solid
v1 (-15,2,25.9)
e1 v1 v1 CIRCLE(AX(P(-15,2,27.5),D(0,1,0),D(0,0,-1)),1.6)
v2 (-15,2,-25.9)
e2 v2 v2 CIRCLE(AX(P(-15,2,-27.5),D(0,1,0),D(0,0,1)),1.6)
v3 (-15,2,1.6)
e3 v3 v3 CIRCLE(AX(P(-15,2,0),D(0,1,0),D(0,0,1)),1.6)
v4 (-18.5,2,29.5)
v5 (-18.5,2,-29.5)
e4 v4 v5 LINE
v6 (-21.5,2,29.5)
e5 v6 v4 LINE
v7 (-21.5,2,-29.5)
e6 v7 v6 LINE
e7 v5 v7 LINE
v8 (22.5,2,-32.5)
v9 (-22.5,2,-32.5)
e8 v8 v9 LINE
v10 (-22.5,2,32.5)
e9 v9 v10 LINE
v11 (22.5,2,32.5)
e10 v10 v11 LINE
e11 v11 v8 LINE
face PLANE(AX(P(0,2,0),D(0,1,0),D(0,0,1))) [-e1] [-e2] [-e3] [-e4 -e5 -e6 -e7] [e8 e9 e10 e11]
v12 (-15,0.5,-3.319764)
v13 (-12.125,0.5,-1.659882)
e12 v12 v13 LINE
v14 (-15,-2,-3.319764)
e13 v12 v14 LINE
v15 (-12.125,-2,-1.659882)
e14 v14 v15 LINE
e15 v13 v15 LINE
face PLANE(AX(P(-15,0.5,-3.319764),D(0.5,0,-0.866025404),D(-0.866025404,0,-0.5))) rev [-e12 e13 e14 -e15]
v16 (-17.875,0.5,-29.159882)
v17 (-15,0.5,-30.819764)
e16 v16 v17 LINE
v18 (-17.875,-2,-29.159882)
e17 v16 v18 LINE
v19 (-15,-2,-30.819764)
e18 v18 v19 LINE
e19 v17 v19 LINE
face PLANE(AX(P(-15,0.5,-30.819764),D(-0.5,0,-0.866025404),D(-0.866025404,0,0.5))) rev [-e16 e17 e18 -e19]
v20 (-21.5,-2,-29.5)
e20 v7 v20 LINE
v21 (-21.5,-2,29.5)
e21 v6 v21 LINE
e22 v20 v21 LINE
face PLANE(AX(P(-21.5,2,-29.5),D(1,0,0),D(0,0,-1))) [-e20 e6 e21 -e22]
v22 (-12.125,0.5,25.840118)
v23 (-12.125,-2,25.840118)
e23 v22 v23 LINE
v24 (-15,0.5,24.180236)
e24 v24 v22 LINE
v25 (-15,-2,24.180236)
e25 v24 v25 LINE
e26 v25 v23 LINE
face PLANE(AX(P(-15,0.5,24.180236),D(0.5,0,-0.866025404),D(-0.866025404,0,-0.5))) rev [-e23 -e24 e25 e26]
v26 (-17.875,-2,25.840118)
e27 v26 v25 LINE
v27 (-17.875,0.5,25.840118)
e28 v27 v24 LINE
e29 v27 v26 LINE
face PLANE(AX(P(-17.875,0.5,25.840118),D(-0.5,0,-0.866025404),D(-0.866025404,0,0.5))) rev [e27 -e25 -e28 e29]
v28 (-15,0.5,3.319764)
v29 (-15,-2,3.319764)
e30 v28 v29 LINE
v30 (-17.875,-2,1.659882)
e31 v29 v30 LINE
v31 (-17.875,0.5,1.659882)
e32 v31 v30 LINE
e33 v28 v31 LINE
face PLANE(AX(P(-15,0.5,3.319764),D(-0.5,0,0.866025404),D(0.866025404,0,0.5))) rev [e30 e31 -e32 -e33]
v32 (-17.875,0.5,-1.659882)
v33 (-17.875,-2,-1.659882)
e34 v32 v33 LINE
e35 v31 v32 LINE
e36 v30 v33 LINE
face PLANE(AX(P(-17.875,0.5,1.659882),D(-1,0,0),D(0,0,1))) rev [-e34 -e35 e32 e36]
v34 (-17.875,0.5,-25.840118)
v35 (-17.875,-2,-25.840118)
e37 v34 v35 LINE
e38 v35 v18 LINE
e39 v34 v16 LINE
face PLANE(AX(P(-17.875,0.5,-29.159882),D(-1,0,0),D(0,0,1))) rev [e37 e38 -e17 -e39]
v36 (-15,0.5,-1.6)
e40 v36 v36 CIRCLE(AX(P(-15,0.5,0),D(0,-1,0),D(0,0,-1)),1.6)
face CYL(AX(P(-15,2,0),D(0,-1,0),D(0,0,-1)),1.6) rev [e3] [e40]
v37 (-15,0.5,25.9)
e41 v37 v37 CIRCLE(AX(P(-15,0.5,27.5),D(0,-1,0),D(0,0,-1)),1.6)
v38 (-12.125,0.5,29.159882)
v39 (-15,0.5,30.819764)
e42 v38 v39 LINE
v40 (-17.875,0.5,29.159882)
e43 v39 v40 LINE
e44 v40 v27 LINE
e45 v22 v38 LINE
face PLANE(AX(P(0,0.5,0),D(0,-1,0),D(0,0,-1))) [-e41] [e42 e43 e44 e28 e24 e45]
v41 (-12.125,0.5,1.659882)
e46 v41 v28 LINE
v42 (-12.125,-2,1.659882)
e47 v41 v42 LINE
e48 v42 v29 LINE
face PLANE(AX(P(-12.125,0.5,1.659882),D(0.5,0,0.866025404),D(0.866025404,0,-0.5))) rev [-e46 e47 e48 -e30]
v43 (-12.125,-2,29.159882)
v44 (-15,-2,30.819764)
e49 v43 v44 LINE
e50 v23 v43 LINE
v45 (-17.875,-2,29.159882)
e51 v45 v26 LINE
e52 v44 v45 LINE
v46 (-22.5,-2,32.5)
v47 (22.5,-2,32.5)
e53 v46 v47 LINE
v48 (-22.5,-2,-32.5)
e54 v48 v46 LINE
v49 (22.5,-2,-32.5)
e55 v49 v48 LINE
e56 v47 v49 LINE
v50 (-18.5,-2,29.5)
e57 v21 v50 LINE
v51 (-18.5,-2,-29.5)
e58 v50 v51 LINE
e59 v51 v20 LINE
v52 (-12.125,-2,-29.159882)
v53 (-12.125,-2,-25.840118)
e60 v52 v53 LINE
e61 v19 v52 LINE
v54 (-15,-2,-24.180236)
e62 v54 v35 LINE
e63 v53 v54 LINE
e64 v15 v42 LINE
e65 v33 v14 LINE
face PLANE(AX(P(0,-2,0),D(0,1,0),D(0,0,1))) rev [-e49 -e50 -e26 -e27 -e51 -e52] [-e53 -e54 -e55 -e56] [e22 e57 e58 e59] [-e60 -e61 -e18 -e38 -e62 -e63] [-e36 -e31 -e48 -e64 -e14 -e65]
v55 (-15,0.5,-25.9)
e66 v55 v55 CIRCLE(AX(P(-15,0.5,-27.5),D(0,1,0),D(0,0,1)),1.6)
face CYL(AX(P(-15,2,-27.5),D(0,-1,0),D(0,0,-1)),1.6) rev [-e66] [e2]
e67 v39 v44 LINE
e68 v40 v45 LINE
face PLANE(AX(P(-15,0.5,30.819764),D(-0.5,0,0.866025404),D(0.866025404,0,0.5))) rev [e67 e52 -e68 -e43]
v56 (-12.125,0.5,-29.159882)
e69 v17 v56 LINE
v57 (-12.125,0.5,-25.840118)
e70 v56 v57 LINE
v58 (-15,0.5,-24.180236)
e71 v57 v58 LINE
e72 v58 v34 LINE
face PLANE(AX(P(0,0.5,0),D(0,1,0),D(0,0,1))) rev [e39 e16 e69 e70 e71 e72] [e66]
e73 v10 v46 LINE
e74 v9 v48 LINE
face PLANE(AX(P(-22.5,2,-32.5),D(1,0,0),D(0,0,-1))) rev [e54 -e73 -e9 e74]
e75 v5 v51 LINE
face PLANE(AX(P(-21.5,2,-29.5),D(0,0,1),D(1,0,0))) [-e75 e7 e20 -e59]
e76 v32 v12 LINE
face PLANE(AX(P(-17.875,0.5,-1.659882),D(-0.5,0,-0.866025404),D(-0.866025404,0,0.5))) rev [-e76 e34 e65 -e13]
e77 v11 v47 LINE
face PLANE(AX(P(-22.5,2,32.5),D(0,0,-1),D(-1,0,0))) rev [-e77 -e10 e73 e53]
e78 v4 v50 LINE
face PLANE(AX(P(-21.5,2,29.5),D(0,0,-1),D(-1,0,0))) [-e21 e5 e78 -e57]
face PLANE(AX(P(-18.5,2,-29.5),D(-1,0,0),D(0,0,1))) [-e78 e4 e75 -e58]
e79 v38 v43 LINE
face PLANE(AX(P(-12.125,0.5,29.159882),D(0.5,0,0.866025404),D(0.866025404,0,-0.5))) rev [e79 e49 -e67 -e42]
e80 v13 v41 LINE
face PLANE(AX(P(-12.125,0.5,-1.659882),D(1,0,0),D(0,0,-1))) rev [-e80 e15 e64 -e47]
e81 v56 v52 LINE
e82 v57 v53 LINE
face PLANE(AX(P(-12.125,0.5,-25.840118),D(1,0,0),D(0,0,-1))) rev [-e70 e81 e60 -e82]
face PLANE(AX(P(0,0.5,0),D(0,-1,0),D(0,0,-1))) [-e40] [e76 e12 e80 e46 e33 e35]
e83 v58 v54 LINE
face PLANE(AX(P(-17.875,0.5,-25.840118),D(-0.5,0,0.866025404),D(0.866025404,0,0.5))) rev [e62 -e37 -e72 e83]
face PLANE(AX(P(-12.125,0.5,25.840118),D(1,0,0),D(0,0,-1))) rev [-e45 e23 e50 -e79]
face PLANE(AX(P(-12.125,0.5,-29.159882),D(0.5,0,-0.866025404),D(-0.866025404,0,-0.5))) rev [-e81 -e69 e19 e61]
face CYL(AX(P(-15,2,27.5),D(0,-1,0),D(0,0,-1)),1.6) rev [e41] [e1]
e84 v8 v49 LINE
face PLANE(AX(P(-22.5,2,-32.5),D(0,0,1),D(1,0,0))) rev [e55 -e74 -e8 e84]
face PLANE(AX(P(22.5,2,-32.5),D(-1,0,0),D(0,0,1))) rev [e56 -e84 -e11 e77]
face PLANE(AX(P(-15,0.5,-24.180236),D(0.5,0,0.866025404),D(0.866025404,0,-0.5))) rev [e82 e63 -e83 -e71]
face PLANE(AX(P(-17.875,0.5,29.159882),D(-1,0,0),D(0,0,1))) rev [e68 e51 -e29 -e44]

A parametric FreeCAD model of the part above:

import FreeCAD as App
import Part
import Sketcher

V = App.Vector
Q = App.Units.Quantity

doc = App.newDocument("Part")
body = doc.addObject("PartDesign::Body", "Body")

sketch1 = body.newObject("Sketcher::SketchObject", "Sketch")
sketch1.AttachmentSupport = (doc.getObject("XZ_Plane"), [""])
sketch1.MapMode = "FlatFace"
sketch1.addGeometry(Part.LineSegment(V(-22.5, -32.5, 0), V(-22.5, 32.5, 0)), False)
sketch1.addGeometry(Part.LineSegment(V(-22.5, 32.5, 0), V(22.5, 32.5, 0)), False)
sketch1.addGeometry(Part.LineSegment(V(22.5, 32.5, 0), V(22.5, -32.5, 0)), False)
sketch1.addGeometry(Part.LineSegment(V(22.5, -32.5, 0), V(-22.5, -32.5, 0)), False)
sketch1.addGeometry(Part.Circle(V(-15, 27.5, 0), V(0, 0, 1), 1.6), False)
sketch1.addGeometry(Part.LineSegment(V(-18.5, 29.5, 0), V(-21.5, 29.5, 0)), False)
sketch1.addGeometry(Part.LineSegment(V(-21.5, 29.5, 0), V(-21.5, -29.5, 0)), False)
sketch1.addGeometry(Part.LineSegment(V(-21.5, -29.5, 0), V(-18.5, -29.5, 0)), False)
sketch1.addGeometry(Part.LineSegment(V(-18.5, -29.5, 0), V(-18.5, 29.5, 0)), False)
sketch1.addGeometry(Part.Circle(V(-15, 0, 0), V(0, 0, 1), 1.6), False)
sketch1.addGeometry(Part.Circle(V(-15, -27.5, 0), V(0, 0, 1), 1.6), False)
sketch1.addConstraint(Sketcher.Constraint("Coincident", 0, 2, 1, 1))
sketch1.addConstraint(Sketcher.Constraint("Coincident", 1, 2, 2, 1))
sketch1.addConstraint(Sketcher.Constraint("Coincident", 2, 2, 3, 1))
sketch1.addConstraint(Sketcher.Constraint("Coincident", 3, 2, 0, 1))
sketch1.addConstraint(Sketcher.Constraint("Coincident", 5, 2, 6, 1))
sketch1.addConstraint(Sketcher.Constraint("Coincident", 6, 2, 7, 1))
sketch1.addConstraint(Sketcher.Constraint("Coincident", 7, 2, 8, 1))
sketch1.addConstraint(Sketcher.Constraint("Coincident", 8, 2, 5, 1))
sketch1.addConstraint(Sketcher.Constraint("Vertical", 0))
sketch1.addConstraint(Sketcher.Constraint("Horizontal", 1))
sketch1.addConstraint(Sketcher.Constraint("Vertical", 2))
sketch1.addConstraint(Sketcher.Constraint("Horizontal", 3))
sketch1.addConstraint(Sketcher.Constraint("Horizontal", 5))
sketch1.addConstraint(Sketcher.Constraint("Vertical", 6))
sketch1.addConstraint(Sketcher.Constraint("Horizontal", 7))
sketch1.addConstraint(Sketcher.Constraint("Vertical", 8))
sketch1.addConstraint(Sketcher.Constraint("Equal", 4, 9))
sketch1.addConstraint(Sketcher.Constraint("Equal", 9, 10))
sketch1.addConstraint(Sketcher.Constraint("Symmetric", 0, 2, 2, 2, -1, 1))
sketch1.addConstraint(Sketcher.Constraint("Symmetric", 4, 3, 10, 3, -1))
sketch1.addConstraint(Sketcher.Constraint("PointOnObject", 9, 3, -1))
sketch1.addConstraint(Sketcher.Constraint("Vertical", 4, 3, 9, 3))
sketch1.addConstraint(Sketcher.Constraint("Diameter", 4, 3.2))
sketch1.addConstraint(Sketcher.Constraint("DistanceX", 1, 1, 1, 2, 45.0))
sketch1.addConstraint(Sketcher.Constraint("DistanceX", 5, 2, 5, 1, 3.0))
sketch1.addConstraint(Sketcher.Constraint("DistanceY", 0, 1, 0, 2, 65.0))
sketch1.addConstraint(Sketcher.Constraint("DistanceY", 6, 2, 6, 1, 59.0))
sketch1.addConstraint(Sketcher.Constraint("DistanceX", 4, 3, -1, 1, 15.0))
sketch1.addConstraint(Sketcher.Constraint("DistanceY", 10, 3, 4, 3, 55.0))
sketch1.addConstraint(Sketcher.Constraint("DistanceX", 0, 2, 5, 2, 1.0))
sketch1.addConstraint(Sketcher.Constraint("DistanceY", 5, 2, 0, 2, 3.0))
pad1 = body.newObject("PartDesign::Pad", "Pad")
pad1.Profile = sketch1
pad1.Length = 4
pad1.Midplane = True

sketch2 = body.newObject("Sketcher::SketchObject", "Sketch001")
sketch2.AttachmentSupport = (doc.getObject("XZ_Plane"), [""])
sketch2.MapMode = "FlatFace"
sketch2.AttachmentOffset = App.Placement(V(0, 0, 2), App.Rotation())
sketch2.addGeometry(Part.LineSegment(V(-15, -3.3, 0), V(-12.1, -1.7, 0)), False)
sketch2.addGeometry(Part.LineSegment(V(-12.1, -1.7, 0), V(-12.1, 1.7, 0)), False)
sketch2.addGeometry(Part.LineSegment(V(-12.1, 1.7, 0), V(-15, 3.3, 0)), False)
sketch2.addGeometry(Part.LineSegment(V(-15, 3.3, 0), V(-17.9, 1.7, 0)), False)
sketch2.addGeometry(Part.LineSegment(V(-17.9, 1.7, 0), V(-17.9, -1.7, 0)), False)
sketch2.addGeometry(Part.LineSegment(V(-17.9, -1.7, 0), V(-15, -3.3, 0)), False)
sketch2.addGeometry(Part.LineSegment(V(-15, -24.2, 0), V(-17.9, -25.8, 0)), False)
sketch2.addGeometry(Part.LineSegment(V(-17.9, -25.8, 0), V(-17.9, -29.2, 0)), False)
sketch2.addGeometry(Part.LineSegment(V(-17.9, -29.2, 0), V(-15, -30.8, 0)), False)
sketch2.addGeometry(Part.LineSegment(V(-15, -30.8, 0), V(-12.1, -29.2, 0)), False)
sketch2.addGeometry(Part.LineSegment(V(-12.1, -29.2, 0), V(-12.1, -25.8, 0)), False)
sketch2.addGeometry(Part.LineSegment(V(-12.1, -25.8, 0), V(-15, -24.2, 0)), False)
sketch2.addGeometry(Part.LineSegment(V(-15, 24.2, 0), V(-12.1, 25.8, 0)), False)
sketch2.addGeometry(Part.LineSegment(V(-12.1, 25.8, 0), V(-12.1, 29.2, 0)), False)
sketch2.addGeometry(Part.LineSegment(V(-12.1, 29.2, 0), V(-15, 30.8, 0)), False)
sketch2.addGeometry(Part.LineSegment(V(-15, 30.8, 0), V(-17.9, 29.2, 0)), False)
sketch2.addGeometry(Part.LineSegment(V(-17.9, 29.2, 0), V(-17.9, 25.8, 0)), False)
sketch2.addGeometry(Part.LineSegment(V(-17.9, 25.8, 0), V(-15, 24.2, 0)), False)
sketch2.addConstraint(Sketcher.Constraint("Coincident", 0, 2, 1, 1))
sketch2.addConstraint(Sketcher.Constraint("Coincident", 1, 2, 2, 1))
sketch2.addConstraint(Sketcher.Constraint("Coincident", 2, 2, 3, 1))
sketch2.addConstraint(Sketcher.Constraint("Coincident", 3, 2, 4, 1))
sketch2.addConstraint(Sketcher.Constraint("Coincident", 4, 2, 5, 1))
sketch2.addConstraint(Sketcher.Constraint("Coincident", 5, 2, 0, 1))
sketch2.addConstraint(Sketcher.Constraint("Coincident", 6, 2, 7, 1))
sketch2.addConstraint(Sketcher.Constraint("Coincident", 7, 2, 8, 1))
sketch2.addConstraint(Sketcher.Constraint("Coincident", 8, 2, 9, 1))
sketch2.addConstraint(Sketcher.Constraint("Coincident", 9, 2, 10, 1))
sketch2.addConstraint(Sketcher.Constraint("Coincident", 10, 2, 11, 1))
sketch2.addConstraint(Sketcher.Constraint("Coincident", 11, 2, 6, 1))
sketch2.addConstraint(Sketcher.Constraint("Coincident", 12, 2, 13, 1))
sketch2.addConstraint(Sketcher.Constraint("Coincident", 13, 2, 14, 1))
sketch2.addConstraint(Sketcher.Constraint("Coincident", 14, 2, 15, 1))
sketch2.addConstraint(Sketcher.Constraint("Coincident", 15, 2, 16, 1))
sketch2.addConstraint(Sketcher.Constraint("Coincident", 16, 2, 17, 1))
sketch2.addConstraint(Sketcher.Constraint("Coincident", 17, 2, 12, 1))
sketch2.addConstraint(Sketcher.Constraint("Vertical", 1))
sketch2.addConstraint(Sketcher.Constraint("Vertical", 4))
sketch2.addConstraint(Sketcher.Constraint("Vertical", 7))
sketch2.addConstraint(Sketcher.Constraint("Vertical", 10))
sketch2.addConstraint(Sketcher.Constraint("Vertical", 13))
sketch2.addConstraint(Sketcher.Constraint("Vertical", 16))
sketch2.addConstraint(Sketcher.Constraint("Symmetric", 2, 2, 5, 2, -1))
sketch2.addConstraint(Sketcher.Constraint("Symmetric", 10, 2, 12, 2, -1))
sketch2.addConstraint(Sketcher.Constraint("Symmetric", 8, 2, 14, 2, -1))
sketch2.addConstraint(Sketcher.Constraint("Symmetric", 7, 2, 15, 2, -1))
sketch2.addConstraint(Sketcher.Constraint("Symmetric", 11, 2, 17, 2, -1))
sketch2.addConstraint(Sketcher.Constraint("Parallel", 0, 3))
sketch2.addConstraint(Sketcher.Constraint("Parallel", 2, 5))
sketch2.addConstraint(Sketcher.Constraint("Parallel", 3, 6))
sketch2.addConstraint(Sketcher.Constraint("Parallel", 5, 8))
sketch2.addConstraint(Sketcher.Constraint("Parallel", 6, 9))
sketch2.addConstraint(Sketcher.Constraint("Parallel", 8, 11))
sketch2.addConstraint(Sketcher.Constraint("Parallel", 9, 12))
sketch2.addConstraint(Sketcher.Constraint("Parallel", 11, 14))
sketch2.addConstraint(Sketcher.Constraint("Parallel", 14, 17))
sketch2.addConstraint(Sketcher.Constraint("Horizontal", 1, 2, 3, 2))
sketch2.addConstraint(Sketcher.Constraint("Horizontal", 7, 2, 9, 2))
sketch2.addConstraint(Sketcher.Constraint("Horizontal", 6, 2, 10, 2))
sketch2.addConstraint(Sketcher.Constraint("Vertical", 4, 2, 6, 2))
sketch2.addConstraint(Sketcher.Constraint("Vertical", 5, 2, 8, 2))
sketch2.addConstraint(Sketcher.Constraint("Equal", 4, 7))
sketch2.addConstraint(Sketcher.Constraint("Angle", 0, Q("30 deg")))
sketch2.addConstraint(Sketcher.Constraint("DistanceX", 2, 2, -1, 1, 15.0))
sketch2.addConstraint(Sketcher.Constraint("DistanceY", 6, 2, 3, 2, 27.5))
sketch2.addConstraint(Sketcher.Constraint("DistanceX", 3, 2, 1, 2, 5.75))
sketch2.addConstraint(Sketcher.Constraint("DistanceY", 1, 1, 1, 2, 3.319764))
pocket1 = body.newObject("PartDesign::Pocket", "Pocket")
pocket1.Profile = sketch2
pocket1.Length = 2.5

doc.recompute()
